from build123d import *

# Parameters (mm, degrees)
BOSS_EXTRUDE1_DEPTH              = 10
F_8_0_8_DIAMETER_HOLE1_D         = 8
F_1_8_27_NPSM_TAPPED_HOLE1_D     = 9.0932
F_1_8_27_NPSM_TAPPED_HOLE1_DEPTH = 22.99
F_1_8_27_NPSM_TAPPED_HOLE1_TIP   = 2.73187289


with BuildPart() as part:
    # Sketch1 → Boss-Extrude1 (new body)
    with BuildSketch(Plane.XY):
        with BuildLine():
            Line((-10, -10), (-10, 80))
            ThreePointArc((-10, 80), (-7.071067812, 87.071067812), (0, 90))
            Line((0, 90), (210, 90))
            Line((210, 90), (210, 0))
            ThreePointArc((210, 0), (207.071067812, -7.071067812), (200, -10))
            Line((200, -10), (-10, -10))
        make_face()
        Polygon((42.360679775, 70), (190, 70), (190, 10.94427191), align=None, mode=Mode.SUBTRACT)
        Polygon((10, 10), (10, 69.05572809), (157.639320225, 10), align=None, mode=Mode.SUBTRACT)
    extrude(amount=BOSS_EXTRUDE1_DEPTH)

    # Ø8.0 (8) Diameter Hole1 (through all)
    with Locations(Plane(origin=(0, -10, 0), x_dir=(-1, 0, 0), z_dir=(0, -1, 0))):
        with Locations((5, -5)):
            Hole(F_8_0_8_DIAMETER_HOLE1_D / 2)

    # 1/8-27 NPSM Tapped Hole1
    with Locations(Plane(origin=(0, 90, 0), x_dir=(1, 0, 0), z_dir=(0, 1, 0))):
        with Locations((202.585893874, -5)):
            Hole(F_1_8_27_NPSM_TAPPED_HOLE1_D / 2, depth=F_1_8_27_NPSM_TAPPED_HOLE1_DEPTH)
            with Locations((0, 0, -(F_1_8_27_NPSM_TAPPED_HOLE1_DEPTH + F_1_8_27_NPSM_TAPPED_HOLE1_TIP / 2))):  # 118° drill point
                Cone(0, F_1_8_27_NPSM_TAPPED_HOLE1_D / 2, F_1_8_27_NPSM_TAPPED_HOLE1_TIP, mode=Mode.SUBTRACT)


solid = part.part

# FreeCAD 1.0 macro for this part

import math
import FreeCAD as App
import Part
import Sketcher

doc = App.newDocument("Part")
body = doc.addObject("PartDesign::Body", "Body")

sketch1 = body.newObject("Sketcher::SketchObject", "Sketch")
sketch1.AttachmentSupport = (doc.getObject("XY_Plane"), [""])
sketch1.MapMode = "FlatFace"
sketch1.addGeometry(Part.LineSegment(App.Vector(-10, 80, 0), App.Vector(-10, -10, 0)), False)
sketch1.addGeometry(Part.LineSegment(App.Vector(-10, -10, 0), App.Vector(200, -10, 0)), False)
sketch1.addGeometry(Part.ArcOfCircle(Part.Circle(App.Vector(200, 0, 0), App.Vector(0, 0, 1), 10), math.radians(-90), math.radians(0)), False)
sketch1.addGeometry(Part.LineSegment(App.Vector(210, 0, 0), App.Vector(210, 90, 0)), False)
sketch1.addGeometry(Part.LineSegment(App.Vector(210, 90, 0), App.Vector(0, 90, 0)), False)
sketch1.addGeometry(Part.ArcOfCircle(Part.Circle(App.Vector(0, 80, 0), App.Vector(0, 0, 1), 10), math.radians(90), math.radians(180)), False)
sketch1.addGeometry(Part.LineSegment(App.Vector(10, 10, 0), App.Vector(10, 69, 0)), False)
sketch1.addGeometry(Part.LineSegment(App.Vector(10, 69, 0), App.Vector(158, 10, 0)), False)
sketch1.addGeometry(Part.LineSegment(App.Vector(158, 10, 0), App.Vector(10, 10, 0)), False)
sketch1.addGeometry(Part.LineSegment(App.Vector(42, 70, 0), App.Vector(190, 70, 0)), False)
sketch1.addGeometry(Part.LineSegment(App.Vector(190, 70, 0), App.Vector(190, 11, 0)), False)
sketch1.addGeometry(Part.LineSegment(App.Vector(190, 11, 0), App.Vector(42, 70, 0)), False)
sketch1.addConstraint(Sketcher.Constraint("Coincident", 0, 2, 1, 1))
sketch1.addConstraint(Sketcher.Constraint("Tangent", 1, 2, 2, 1))
sketch1.addConstraint(Sketcher.Constraint("Tangent", 2, 2, 3, 1))
sketch1.addConstraint(Sketcher.Constraint("Coincident", 3, 2, 4, 1))
sketch1.addConstraint(Sketcher.Constraint("Tangent", 4, 2, 5, 1))
sketch1.addConstraint(Sketcher.Constraint("Tangent", 5, 2, 0, 1))
sketch1.addConstraint(Sketcher.Constraint("Coincident", 6, 2, 7, 1))
sketch1.addConstraint(Sketcher.Constraint("Coincident", 7, 2, 8, 1))
sketch1.addConstraint(Sketcher.Constraint("Coincident", 8, 2, 6, 1))
sketch1.addConstraint(Sketcher.Constraint("Coincident", 9, 2, 10, 1))
sketch1.addConstraint(Sketcher.Constraint("Coincident", 10, 2, 11, 1))
sketch1.addConstraint(Sketcher.Constraint("Coincident", 11, 2, 9, 1))
sketch1.addConstraint(Sketcher.Constraint("Vertical", 0))
sketch1.addConstraint(Sketcher.Constraint("Horizontal", 1))
sketch1.addConstraint(Sketcher.Constraint("Vertical", 3))
sketch1.addConstraint(Sketcher.Constraint("Horizontal", 4))
sketch1.addConstraint(Sketcher.Constraint("Vertical", 6))
sketch1.addConstraint(Sketcher.Constraint("Horizontal", 8))
sketch1.addConstraint(Sketcher.Constraint("Horizontal", 9))
sketch1.addConstraint(Sketcher.Constraint("Vertical", 10))
sketch1.addConstraint(Sketcher.Constraint("Equal", 2, 5))
sketch1.addConstraint(Sketcher.Constraint("Symmetric", 0, 2, 8, 2, -1, 1))
sketch1.addConstraint(Sketcher.Constraint("PointOnObject", 2, 3, -1))
sketch1.addConstraint(Sketcher.Constraint("PointOnObject", 5, 3, -2))
sketch1.addConstraint(Sketcher.Constraint("Parallel", 7, 11))
sketch1.addConstraint(Sketcher.Constraint("Equal", 8, 9))
sketch1.addConstraint(Sketcher.Constraint("Radius", 2, 10.0))
sketch1.addConstraint(Sketcher.Constraint("DistanceX", 1, 1, 1, 2, 210.0))
sketch1.addConstraint(Sketcher.Constraint("DistanceY", 0, 2, 0, 1, 90.0))
sketch1.addConstraint(Sketcher.Constraint("DistanceX", -1, 1, 9, 2, 190.0))
sketch1.addConstraint(Sketcher.Constraint("DistanceY", -1, 1, 9, 2, 70.0))
sketch1.addConstraint(Sketcher.Constraint("DistanceX", 8, 2, 8, 1, 147.63932))
sketch1.addConstraint(Sketcher.Constraint("DistanceY", 6, 1, 6, 2, 59.055728))
pad1 = body.newObject("PartDesign::Pad", "Pad")
pad1.Profile = sketch1
pad1.Length = 10

sketch2 = body.newObject("Sketcher::SketchObject", "Sketch001")
sketch2.AttachmentSupport = (doc.getObject("XZ_Plane"), [""])
sketch2.MapMode = "FlatFace"
sketch2.AttachmentOffset = App.Placement(App.Vector(0, 0, 10), App.Rotation())
sketch2.addGeometry(Part.Circle(App.Vector(-5, 5, 0), App.Vector(0, 0, 1), 4), False)
sketch2.addConstraint(Sketcher.Constraint("Diameter", 0, 8.0))
sketch2.addConstraint(Sketcher.Constraint("DistanceX", 0, 3, -1, 1, 5.0))
sketch2.addConstraint(Sketcher.Constraint("DistanceY", -1, 1, 0, 3, 5.0))
doc.recompute()
hole = body.newObject("PartDesign::Hole", "Hole")
hole.Profile = sketch2
hole.ThreadType = "None"
hole.Diameter = 8
hole.DepthType = "ThroughAll"

sketch3 = body.newObject("Sketcher::SketchObject", "Sketch002")
sketch3.AttachmentSupport = (doc.getObject("XZ_Plane"), [""])
sketch3.MapMode = "FlatFace"
sketch3.AttachmentOffset = App.Placement(App.Vector(0, 0, -90), App.Rotation())
sketch3.addGeometry(Part.Circle(App.Vector(202.6, 5, 0), App.Vector(0, 0, 1), 4.5), False)
sketch3.addConstraint(Sketcher.Constraint("DistanceY", -1, 1, 0, 3, 5.0))
sketch3.addConstraint(Sketcher.Constraint("Diameter", 0, 9.0932))
sketch3.addConstraint(Sketcher.Constraint("DistanceX", -1, 1, 0, 3, 202.585894))
doc.recompute()
hole2 = body.newObject("PartDesign::Hole", "Hole001")
hole2.Profile = sketch3
hole2.ThreadType = "None"
hole2.Diameter = 9.0932
hole2.DepthType = "Dimension"
hole2.Depth = 22.99
hole2.DrillPoint = "Angled"
hole2.DrillPointAngle = 118
hole2.Reversed = True

doc.recompute()
